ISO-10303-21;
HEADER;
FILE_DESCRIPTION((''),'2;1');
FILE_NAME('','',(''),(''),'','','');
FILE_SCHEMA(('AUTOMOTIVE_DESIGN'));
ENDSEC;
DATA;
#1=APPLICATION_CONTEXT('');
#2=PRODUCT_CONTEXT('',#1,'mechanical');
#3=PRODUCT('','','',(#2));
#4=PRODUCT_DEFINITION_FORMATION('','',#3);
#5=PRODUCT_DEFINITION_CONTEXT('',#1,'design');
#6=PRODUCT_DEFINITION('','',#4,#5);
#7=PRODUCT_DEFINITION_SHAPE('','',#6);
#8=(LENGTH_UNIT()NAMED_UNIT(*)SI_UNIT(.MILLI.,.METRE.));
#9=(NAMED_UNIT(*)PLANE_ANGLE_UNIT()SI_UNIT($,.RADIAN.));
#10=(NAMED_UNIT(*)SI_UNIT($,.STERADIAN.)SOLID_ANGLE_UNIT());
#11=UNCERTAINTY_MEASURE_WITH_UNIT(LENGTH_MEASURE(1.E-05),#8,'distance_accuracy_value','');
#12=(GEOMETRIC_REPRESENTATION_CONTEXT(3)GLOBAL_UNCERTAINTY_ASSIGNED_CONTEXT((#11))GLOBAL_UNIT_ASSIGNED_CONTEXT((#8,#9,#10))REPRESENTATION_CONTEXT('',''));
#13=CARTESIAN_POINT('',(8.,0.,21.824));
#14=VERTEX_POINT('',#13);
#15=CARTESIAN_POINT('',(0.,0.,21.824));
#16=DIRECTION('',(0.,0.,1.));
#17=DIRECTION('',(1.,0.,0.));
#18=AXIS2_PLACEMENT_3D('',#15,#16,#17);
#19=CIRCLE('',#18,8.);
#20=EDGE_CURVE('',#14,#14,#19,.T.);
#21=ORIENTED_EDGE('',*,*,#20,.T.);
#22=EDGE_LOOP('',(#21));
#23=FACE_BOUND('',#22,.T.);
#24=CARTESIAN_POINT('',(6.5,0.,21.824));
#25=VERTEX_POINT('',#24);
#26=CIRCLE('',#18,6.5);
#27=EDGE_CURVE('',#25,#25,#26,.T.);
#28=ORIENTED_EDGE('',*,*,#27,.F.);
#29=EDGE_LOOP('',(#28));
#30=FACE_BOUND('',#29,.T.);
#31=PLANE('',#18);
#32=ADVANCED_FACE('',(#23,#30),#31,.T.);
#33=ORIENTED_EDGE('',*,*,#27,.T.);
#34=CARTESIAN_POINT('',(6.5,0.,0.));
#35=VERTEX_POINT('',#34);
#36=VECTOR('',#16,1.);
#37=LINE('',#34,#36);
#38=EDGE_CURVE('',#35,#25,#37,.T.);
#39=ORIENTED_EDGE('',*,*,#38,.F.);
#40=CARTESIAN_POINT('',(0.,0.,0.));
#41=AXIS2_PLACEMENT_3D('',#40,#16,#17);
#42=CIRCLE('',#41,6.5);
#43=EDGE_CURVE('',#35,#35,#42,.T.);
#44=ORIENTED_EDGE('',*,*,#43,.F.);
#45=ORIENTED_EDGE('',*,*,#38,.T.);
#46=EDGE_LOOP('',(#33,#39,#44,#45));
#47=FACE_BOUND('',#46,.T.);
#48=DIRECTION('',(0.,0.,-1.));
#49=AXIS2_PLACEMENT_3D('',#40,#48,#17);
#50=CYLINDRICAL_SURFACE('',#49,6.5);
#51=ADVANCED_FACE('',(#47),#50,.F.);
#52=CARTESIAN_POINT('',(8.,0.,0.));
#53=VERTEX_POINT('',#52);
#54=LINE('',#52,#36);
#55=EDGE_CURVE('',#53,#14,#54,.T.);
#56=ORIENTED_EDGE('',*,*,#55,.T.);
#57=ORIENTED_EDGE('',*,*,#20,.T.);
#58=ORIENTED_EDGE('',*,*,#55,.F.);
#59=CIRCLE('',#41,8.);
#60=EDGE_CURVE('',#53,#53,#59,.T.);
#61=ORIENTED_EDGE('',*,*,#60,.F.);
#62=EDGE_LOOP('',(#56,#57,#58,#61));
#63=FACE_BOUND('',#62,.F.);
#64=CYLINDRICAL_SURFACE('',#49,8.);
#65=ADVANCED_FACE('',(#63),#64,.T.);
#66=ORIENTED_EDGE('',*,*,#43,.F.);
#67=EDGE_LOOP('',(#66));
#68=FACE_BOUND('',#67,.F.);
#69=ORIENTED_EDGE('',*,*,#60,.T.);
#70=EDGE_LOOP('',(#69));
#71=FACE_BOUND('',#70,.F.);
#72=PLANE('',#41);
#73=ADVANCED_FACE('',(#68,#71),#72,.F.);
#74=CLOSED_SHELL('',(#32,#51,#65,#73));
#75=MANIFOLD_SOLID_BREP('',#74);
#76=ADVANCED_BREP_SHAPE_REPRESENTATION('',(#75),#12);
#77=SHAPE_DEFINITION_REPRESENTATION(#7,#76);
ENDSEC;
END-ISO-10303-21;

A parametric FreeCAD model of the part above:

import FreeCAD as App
import Part
import Sketcher
Q = App.Units.Quantity

doc = App.newDocument("Part")
body = doc.addObject("PartDesign::Body", "Body")

sketch1 = body.newObject("Sketcher::SketchObject", "Sketch")
sketch1.AttachmentSupport = (doc.getObject("XY_Plane"), [""])
sketch1.MapMode = "FlatFace"
sketch1.addGeometry([
    Part.Circle(App.Vector(0, 0, 0), App.Vector(0, 0, 1), 8),
    Part.Circle(App.Vector(0, 0, 0), App.Vector(0, 0, 1), 6),
], False)
sketch1.addConstraint([
    Sketcher.Constraint("Coincident", 0, 3, -1, 1),
    Sketcher.Constraint("Coincident", 1, 3, -1, 1),
    Sketcher.Constraint("Diameter", 0, Q("16 mm")),
    Sketcher.Constraint("Diameter", 1, Q("13 mm")),
])
pad1 = body.newObject("PartDesign::Pad", "Pad")
pad1.Profile = sketch1
pad1.Length = 21.824

doc.recompute()
